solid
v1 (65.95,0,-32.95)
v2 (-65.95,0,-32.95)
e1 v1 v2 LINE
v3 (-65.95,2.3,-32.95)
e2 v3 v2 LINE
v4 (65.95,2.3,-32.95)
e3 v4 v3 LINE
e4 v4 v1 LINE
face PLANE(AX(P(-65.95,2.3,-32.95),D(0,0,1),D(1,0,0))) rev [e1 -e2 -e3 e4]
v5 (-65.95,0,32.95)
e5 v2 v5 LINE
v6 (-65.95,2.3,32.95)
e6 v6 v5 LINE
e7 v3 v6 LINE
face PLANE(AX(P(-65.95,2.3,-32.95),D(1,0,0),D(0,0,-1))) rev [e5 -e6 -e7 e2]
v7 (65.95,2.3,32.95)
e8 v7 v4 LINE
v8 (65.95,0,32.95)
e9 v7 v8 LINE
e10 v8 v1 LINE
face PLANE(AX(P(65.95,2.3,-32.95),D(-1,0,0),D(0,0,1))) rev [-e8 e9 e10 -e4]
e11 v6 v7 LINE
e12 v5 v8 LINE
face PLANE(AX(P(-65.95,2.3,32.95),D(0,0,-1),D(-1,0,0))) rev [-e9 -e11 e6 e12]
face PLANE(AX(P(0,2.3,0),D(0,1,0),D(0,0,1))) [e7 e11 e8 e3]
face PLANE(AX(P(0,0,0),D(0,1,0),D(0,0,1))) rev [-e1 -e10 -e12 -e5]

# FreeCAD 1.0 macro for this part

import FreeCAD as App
import Part
import Sketcher

V = App.Vector
Q = App.Units.Quantity

doc = App.newDocument("Part")
body = doc.addObject("PartDesign::Body", "Body")

sketch1 = doc.addObject("Sketcher::SketchObject", "Sketch")
body.addObject(sketch1)
sketch1.AttachmentSupport = (doc.XZ_Plane, [""])
sketch1.MapMode = "FlatFace"
sketch1.addGeometry(Part.LineSegment(V(-65.95, -32.95, 0), V(-65.95, 32.95, 0)), False)
sketch1.addGeometry(Part.LineSegment(V(-65.95, 32.95, 0), V(65.95, 32.95, 0)), False)
sketch1.addGeometry(Part.LineSegment(V(65.95, 32.95, 0), V(65.95, -32.95, 0)), False)
sketch1.addGeometry(Part.LineSegment(V(65.95, -32.95, 0), V(-65.95, -32.95, 0)), False)
sketch1.addConstraint(Sketcher.Constraint("Coincident", 0, 2, 1, 1))
sketch1.addConstraint(Sketcher.Constraint("Coincident", 1, 2, 2, 1))
sketch1.addConstraint(Sketcher.Constraint("Coincident", 2, 2, 3, 1))
sketch1.addConstraint(Sketcher.Constraint("Coincident", 3, 2, 0, 1))
sketch1.addConstraint(Sketcher.Constraint("Vertical", 0))
sketch1.addConstraint(Sketcher.Constraint("Horizontal", 1))
sketch1.addConstraint(Sketcher.Constraint("Vertical", 2))
sketch1.addConstraint(Sketcher.Constraint("Horizontal", 3))
sketch1.addConstraint(Sketcher.Constraint("Symmetric", 0, 2, 2, 2, -1, 1))
sketch1.addConstraint(Sketcher.Constraint("DistanceX", 1, 1, 1, 2, Q("131.9 mm")))
sketch1.addConstraint(Sketcher.Constraint("DistanceY", 0, 1, 0, 2, Q("65.9 mm")))
pad1 = doc.addObject("PartDesign::Pad", "Pad")
body.addObject(pad1)
pad1.Profile = sketch1
pad1.Length = 2.3
pad1.Reversed = True

doc.recompute()
